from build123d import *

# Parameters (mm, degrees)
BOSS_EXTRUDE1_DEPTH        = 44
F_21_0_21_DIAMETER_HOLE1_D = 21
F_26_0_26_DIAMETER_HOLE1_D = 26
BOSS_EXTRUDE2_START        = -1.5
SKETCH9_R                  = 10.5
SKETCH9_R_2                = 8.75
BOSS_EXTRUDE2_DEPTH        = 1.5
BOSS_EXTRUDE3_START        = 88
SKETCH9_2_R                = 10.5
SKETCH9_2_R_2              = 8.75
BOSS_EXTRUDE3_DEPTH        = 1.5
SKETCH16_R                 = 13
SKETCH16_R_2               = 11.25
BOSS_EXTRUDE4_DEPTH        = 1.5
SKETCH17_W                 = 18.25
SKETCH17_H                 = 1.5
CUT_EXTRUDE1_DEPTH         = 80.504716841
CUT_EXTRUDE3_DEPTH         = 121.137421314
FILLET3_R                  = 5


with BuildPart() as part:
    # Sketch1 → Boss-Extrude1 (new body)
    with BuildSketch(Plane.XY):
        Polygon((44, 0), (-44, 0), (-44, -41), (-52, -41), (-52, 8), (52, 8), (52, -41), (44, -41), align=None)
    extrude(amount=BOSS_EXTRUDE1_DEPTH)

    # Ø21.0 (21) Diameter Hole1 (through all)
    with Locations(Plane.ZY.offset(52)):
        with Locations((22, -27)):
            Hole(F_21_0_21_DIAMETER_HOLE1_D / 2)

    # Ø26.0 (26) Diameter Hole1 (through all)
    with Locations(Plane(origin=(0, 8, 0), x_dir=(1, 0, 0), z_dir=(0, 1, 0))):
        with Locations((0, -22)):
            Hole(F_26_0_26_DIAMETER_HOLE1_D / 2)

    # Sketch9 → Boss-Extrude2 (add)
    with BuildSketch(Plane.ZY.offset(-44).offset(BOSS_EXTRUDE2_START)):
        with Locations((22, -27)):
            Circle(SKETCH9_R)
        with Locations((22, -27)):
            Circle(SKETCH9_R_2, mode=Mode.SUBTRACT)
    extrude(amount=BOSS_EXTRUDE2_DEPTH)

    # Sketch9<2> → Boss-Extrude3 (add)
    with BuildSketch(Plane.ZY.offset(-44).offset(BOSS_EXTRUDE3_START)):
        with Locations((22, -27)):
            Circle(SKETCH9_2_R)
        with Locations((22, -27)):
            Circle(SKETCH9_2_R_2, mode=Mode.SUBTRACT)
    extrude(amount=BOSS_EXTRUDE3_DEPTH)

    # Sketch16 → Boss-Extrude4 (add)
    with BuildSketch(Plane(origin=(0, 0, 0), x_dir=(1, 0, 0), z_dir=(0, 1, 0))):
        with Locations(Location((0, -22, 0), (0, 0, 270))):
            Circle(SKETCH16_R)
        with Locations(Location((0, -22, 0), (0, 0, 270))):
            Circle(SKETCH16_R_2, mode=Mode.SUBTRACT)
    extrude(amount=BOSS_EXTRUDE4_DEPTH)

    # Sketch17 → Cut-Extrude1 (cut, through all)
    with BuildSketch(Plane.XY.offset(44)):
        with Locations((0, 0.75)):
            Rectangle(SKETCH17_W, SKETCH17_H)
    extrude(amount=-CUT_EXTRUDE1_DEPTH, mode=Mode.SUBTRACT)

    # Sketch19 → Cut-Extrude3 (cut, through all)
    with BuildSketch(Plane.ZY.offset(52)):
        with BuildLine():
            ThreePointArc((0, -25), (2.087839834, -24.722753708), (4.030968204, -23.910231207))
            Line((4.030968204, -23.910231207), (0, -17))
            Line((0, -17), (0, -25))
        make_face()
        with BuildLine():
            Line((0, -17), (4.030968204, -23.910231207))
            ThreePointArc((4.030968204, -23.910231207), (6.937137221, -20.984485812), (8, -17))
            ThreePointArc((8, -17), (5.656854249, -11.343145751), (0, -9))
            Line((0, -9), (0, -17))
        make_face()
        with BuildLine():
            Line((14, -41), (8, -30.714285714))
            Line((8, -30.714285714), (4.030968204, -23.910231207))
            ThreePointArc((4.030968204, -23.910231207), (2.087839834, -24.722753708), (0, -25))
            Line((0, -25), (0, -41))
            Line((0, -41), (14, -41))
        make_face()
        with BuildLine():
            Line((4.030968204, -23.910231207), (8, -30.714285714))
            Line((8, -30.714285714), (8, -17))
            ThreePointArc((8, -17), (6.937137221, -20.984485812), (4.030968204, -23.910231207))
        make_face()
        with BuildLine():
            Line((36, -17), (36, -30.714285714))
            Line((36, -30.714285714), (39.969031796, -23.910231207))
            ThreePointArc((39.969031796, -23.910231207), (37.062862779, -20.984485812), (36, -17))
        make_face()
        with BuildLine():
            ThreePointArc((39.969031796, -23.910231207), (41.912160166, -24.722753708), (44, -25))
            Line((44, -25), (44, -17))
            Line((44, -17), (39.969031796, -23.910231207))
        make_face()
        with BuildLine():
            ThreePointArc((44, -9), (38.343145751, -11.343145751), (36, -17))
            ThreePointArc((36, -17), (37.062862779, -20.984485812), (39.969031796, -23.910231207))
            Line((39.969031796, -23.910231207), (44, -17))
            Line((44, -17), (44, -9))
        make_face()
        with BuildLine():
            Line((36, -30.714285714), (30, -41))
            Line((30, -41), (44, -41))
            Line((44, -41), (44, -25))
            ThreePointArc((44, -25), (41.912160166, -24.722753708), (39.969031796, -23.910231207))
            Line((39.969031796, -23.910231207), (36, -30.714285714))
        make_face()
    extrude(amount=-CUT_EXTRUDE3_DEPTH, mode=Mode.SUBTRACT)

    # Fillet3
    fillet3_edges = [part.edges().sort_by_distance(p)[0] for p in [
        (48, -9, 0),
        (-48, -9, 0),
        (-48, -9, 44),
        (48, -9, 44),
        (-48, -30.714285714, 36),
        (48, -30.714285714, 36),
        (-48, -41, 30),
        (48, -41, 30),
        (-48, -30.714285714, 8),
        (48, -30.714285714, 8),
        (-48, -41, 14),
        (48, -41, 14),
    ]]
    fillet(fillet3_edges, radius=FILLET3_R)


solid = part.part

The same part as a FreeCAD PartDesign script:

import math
import FreeCAD as App
import Part
import Sketcher

V = App.Vector
Q = App.Units.Quantity


def edges_at(feature, points):
    """Names of the edges that pass closest to the given points."""
    edges = feature.Shape.Edges
    near = lambda p: min(range(len(edges)), key=lambda i: edges[i].distToShape(Part.Vertex(*p))[0])
    return sorted({f"Edge{near(p) + 1}" for p in points})

doc = App.newDocument("Part")
body = doc.addObject("PartDesign::Body", "Body")

# Sketch on XY plane
sketch1 = body.newObject("Sketcher::SketchObject", "Sketch")
sketch1.AttachmentSupport = (doc.getObject("XY_Plane"), [""])
sketch1.MapMode = "FlatFace"
sketch1.addGeometry([
    Part.LineSegment(V(-44, 0, 0), V(44, 0, 0)),  # 0
    Part.LineSegment(V(44, 0, 0), V(44, -41, 0)),  # 1
    Part.LineSegment(V(44, -41, 0), V(52, -41, 0)),  # 2
    Part.LineSegment(V(52, -41, 0), V(52, 8, 0)),  # 3
    Part.LineSegment(V(52, 8, 0), V(-52, 8, 0)),  # 4
    Part.LineSegment(V(-52, 8, 0), V(-52, -41, 0)),  # 5
    Part.LineSegment(V(-52, -41, 0), V(-44, -41, 0)),  # 6
    Part.LineSegment(V(-44, -41, 0), V(-44, 0, 0)),  # 7
], False)
sketch1.addConstraint([
    Sketcher.Constraint("Coincident", 0, 2, 1, 1),
    Sketcher.Constraint("Coincident", 1, 2, 2, 1),
    Sketcher.Constraint("Coincident", 2, 2, 3, 1),
    Sketcher.Constraint("Coincident", 3, 2, 4, 1),
    Sketcher.Constraint("Coincident", 4, 2, 5, 1),
    Sketcher.Constraint("Coincident", 5, 2, 6, 1),
    Sketcher.Constraint("Coincident", 6, 2, 7, 1),
    Sketcher.Constraint("Coincident", 7, 2, 0, 1),
    Sketcher.Constraint("Horizontal", 0),
    Sketcher.Constraint("Vertical", 1),
    Sketcher.Constraint("Horizontal", 2),
    Sketcher.Constraint("Vertical", 3),
    Sketcher.Constraint("Horizontal", 4),
    Sketcher.Constraint("Vertical", 5),
    Sketcher.Constraint("Horizontal", 6),
    Sketcher.Constraint("Vertical", 7),
    Sketcher.Constraint("Symmetric", 0, 2, 7, 2, -1, 1),
    Sketcher.Constraint("Symmetric", 2, 2, 5, 2, -2),
    Sketcher.Constraint("DistanceX", 0, 1, 0, 2, Q("88 mm")),
    Sketcher.Constraint("DistanceX", 2, 1, 2, 2, Q("8 mm")),
    Sketcher.Constraint("DistanceY", 1, 2, 1, 1, Q("41 mm")),
    Sketcher.Constraint("DistanceY", 3, 1, 3, 2, Q("49 mm")),
])
pad1 = body.newObject("PartDesign::Pad", "Pad")
pad1.Profile = sketch1
pad1.Length = 44

# Sketch on YZ plane
sketch2 = body.newObject("Sketcher::SketchObject", "Sketch001")
sketch2.AttachmentSupport = (doc.getObject("YZ_Plane"), [""])
sketch2.MapMode = "FlatFace"
sketch2.AttachmentOffset = App.Placement(V(0, 0, -52), App.Rotation())
sketch2.addGeometry(Part.Circle(V(-27, 22, 0), V(0, 0, 1), 10), False)
sketch2.addConstraint([
    Sketcher.Constraint("Diameter", 0, Q("21 mm")),
    Sketcher.Constraint("DistanceX", 0, 3, -1, 1, Q("27 mm")),
    Sketcher.Constraint("DistanceY", -1, 1, 0, 3, Q("22 mm")),
])
doc.recompute()
hole = body.newObject("PartDesign::Hole", "Hole")
hole.Profile = sketch2
hole.ThreadType = "None"
hole.Diameter = 21
hole.DepthType = "ThroughAll"
hole.Reversed = True

# Sketch on XZ plane
sketch3 = body.newObject("Sketcher::SketchObject", "Sketch002")
sketch3.AttachmentSupport = (doc.getObject("XZ_Plane"), [""])
sketch3.MapMode = "FlatFace"
sketch3.AttachmentOffset = App.Placement(V(0, 0, -8), App.Rotation())
sketch3.addGeometry(Part.Circle(V(0, 22, 0), V(0, 0, 1), 13), False)
sketch3.addConstraint([
    Sketcher.Constraint("PointOnObject", 0, 3, -2),
    Sketcher.Constraint("Diameter", 0, Q("26 mm")),
    Sketcher.Constraint("DistanceY", -1, 1, 0, 3, Q("22 mm")),
])
doc.recompute()
hole2 = body.newObject("PartDesign::Hole", "Hole001")
hole2.Profile = sketch3
hole2.ThreadType = "None"
hole2.Diameter = 26
hole2.DepthType = "ThroughAll"
hole2.Reversed = True

# Sketch on YZ plane
sketch4 = body.newObject("Sketcher::SketchObject", "Sketch003")
sketch4.AttachmentSupport = (doc.getObject("YZ_Plane"), [""])
sketch4.MapMode = "FlatFace"
sketch4.AttachmentOffset = App.Placement(V(0, 0, 45.5), App.Rotation())
sketch4.addGeometry([
    Part.Circle(V(-27, 22, 0), V(0, 0, 1), 10),
    Part.Circle(V(-27, 22, 0), V(0, 0, 1), 9),
], False)
sketch4.addConstraint([
    Sketcher.Constraint("Coincident", 1, 3, 0, 3),
    Sketcher.Constraint("Diameter", 0, Q("21 mm")),
    Sketcher.Constraint("Diameter", 1, Q("17.5 mm")),
    Sketcher.Constraint("DistanceX", 0, 3, -1, 1, Q("27 mm")),
    Sketcher.Constraint("DistanceY", -1, 1, 0, 3, Q("22 mm")),
])
pad2 = body.newObject("PartDesign::Pad", "Pad001")
pad2.Profile = sketch4
pad2.Length = 1.5
pad2.Reversed = True

# Sketch on YZ plane
sketch5 = body.newObject("Sketcher::SketchObject", "Sketch004")
sketch5.AttachmentSupport = (doc.getObject("YZ_Plane"), [""])
sketch5.MapMode = "FlatFace"
sketch5.AttachmentOffset = App.Placement(V(0, 0, -44), App.Rotation())
sketch5.addGeometry([
    Part.Circle(V(-27, 22, 0), V(0, 0, 1), 10),
    Part.Circle(V(-27, 22, 0), V(0, 0, 1), 9),
], False)
sketch5.addConstraint([
    Sketcher.Constraint("Coincident", 1, 3, 0, 3),
    Sketcher.Constraint("Diameter", 0, Q("21 mm")),
    Sketcher.Constraint("Diameter", 1, Q("17.5 mm")),
    Sketcher.Constraint("DistanceX", 0, 3, -1, 1, Q("27 mm")),
    Sketcher.Constraint("DistanceY", -1, 1, 0, 3, Q("22 mm")),
])
pad3 = body.newObject("PartDesign::Pad", "Pad002")
pad3.Profile = sketch5
pad3.Length = 1.5
pad3.Reversed = True

# Sketch on XZ plane
sketch6 = body.newObject("Sketcher::SketchObject", "Sketch005")
sketch6.AttachmentSupport = (doc.getObject("XZ_Plane"), [""])
sketch6.MapMode = "FlatFace"
sketch6.addGeometry([
    Part.Circle(V(0, 22, 0), V(0, 0, 1), 13),
    Part.Circle(V(0, 22, 0), V(0, 0, 1), 11),
], False)
sketch6.addConstraint([
    Sketcher.Constraint("Coincident", 1, 3, 0, 3),
    Sketcher.Constraint("PointOnObject", 0, 3, -2),
    Sketcher.Constraint("Diameter", 0, Q("26 mm")),
    Sketcher.Constraint("Diameter", 1, Q("22.5 mm")),
    Sketcher.Constraint("DistanceY", -1, 1, 0, 3, Q("22 mm")),
])
pad4 = body.newObject("PartDesign::Pad", "Pad003")
pad4.Profile = sketch6
pad4.Length = 1.5
pad4.Reversed = True

# Sketch on XY plane
sketch7 = body.newObject("Sketcher::SketchObject", "Sketch006")
sketch7.AttachmentSupport = (doc.getObject("XY_Plane"), [""])
sketch7.MapMode = "FlatFace"
sketch7.AttachmentOffset = App.Placement(V(0, 0, 44), App.Rotation())
sketch7.addGeometry([
    Part.LineSegment(V(-9.1, 1.5, 0), V(-9.1, 0, 0)),
    Part.LineSegment(V(-9.1, 0, 0), V(9.1, 0, 0)),
    Part.LineSegment(V(9.1, 0, 0), V(9.1, 1.5, 0)),
    Part.LineSegment(V(9.1, 1.5, 0), V(-9.1, 1.5, 0)),
], False)
sketch7.addConstraint([
    Sketcher.Constraint("Coincident", 0, 2, 1, 1),
    Sketcher.Constraint("Coincident", 1, 2, 2, 1),
    Sketcher.Constraint("Coincident", 2, 2, 3, 1),
    Sketcher.Constraint("Coincident", 3, 2, 0, 1),
    Sketcher.Constraint("Vertical", 0),
    Sketcher.Constraint("Horizontal", 1),
    Sketcher.Constraint("Vertical", 2),
    Sketcher.Constraint("Horizontal", 3),
    Sketcher.Constraint("Symmetric", 0, 2, 1, 2, -1, 1),
    Sketcher.Constraint("DistanceY", 0, 2, 0, 1, Q("1.5 mm")),
    Sketcher.Constraint("DistanceX", 1, 1, 1, 2, Q("18.25 mm")),
])
pocket1 = body.newObject("PartDesign::Pocket", "Pocket")
pocket1.Profile = sketch7
pocket1.Type = "ThroughAll"

# Sketch on YZ plane
sketch8 = body.newObject("Sketcher::SketchObject", "Sketch007")
sketch8.AttachmentSupport = (doc.getObject("YZ_Plane"), [""])
sketch8.MapMode = "FlatFace"
sketch8.AttachmentOffset = App.Placement(V(0, 0, -52), App.Rotation())
sketch8.addGeometry([
    Part.ArcOfCircle(Part.Circle(V(-17, 0, 0), V(0, 0, 1), 8), math.radians(0), math.radians(90)),  # 0
    Part.LineSegment(V(-9, 0, 0), V(-41, 0, 0)),  # 1
    Part.LineSegment(V(-41, 0, 0), V(-41, 14, 0)),  # 2
    Part.LineSegment(V(-41, 14, 0), V(-31, 8, 0)),  # 3
    Part.LineSegment(V(-31, 8, 0), V(-17, 8, 0)),  # 4
    Part.LineSegment(V(-17, 36, 0), V(-31, 36, 0)),  # 5
    Part.LineSegment(V(-31, 36, 0), V(-41, 30, 0)),  # 6
    Part.LineSegment(V(-41, 30, 0), V(-41, 44, 0)),  # 7
    Part.LineSegment(V(-41, 44, 0), V(-9, 44, 0)),  # 8
    Part.ArcOfCircle(Part.Circle(V(-17, 44, 0), V(0, 0, 1), 8), math.radians(-90), math.radians(0)),  # 9
], False)
sketch8.addConstraint([
    Sketcher.Constraint("Coincident", 0, 1, 1, 1),
    Sketcher.Constraint("Coincident", 1, 2, 2, 1),
    Sketcher.Constraint("Coincident", 2, 2, 3, 1),
    Sketcher.Constraint("Coincident", 3, 2, 4, 1),
    Sketcher.Constraint("Tangent", 4, 2, 0, 2),
    Sketcher.Constraint("Coincident", 5, 2, 6, 1),
    Sketcher.Constraint("Coincident", 6, 2, 7, 1),
    Sketcher.Constraint("Coincident", 7, 2, 8, 1),
    Sketcher.Constraint("Coincident", 8, 2, 9, 2),
    Sketcher.Constraint("Tangent", 9, 1, 5, 1),
    Sketcher.Constraint("Horizontal", 1),
    Sketcher.Constraint("Vertical", 2),
    Sketcher.Constraint("Horizontal", 4),
    Sketcher.Constraint("Horizontal", 5),
    Sketcher.Constraint("Vertical", 7),
    Sketcher.Constraint("Horizontal", 8),
    Sketcher.Constraint("Equal", 0, 9),
    Sketcher.Constraint("PointOnObject", 0, 3, -1),
    Sketcher.Constraint("PointOnObject", 0, 1, -1),
    Sketcher.Constraint("Horizontal", 9, 3, 7, 2),
    Sketcher.Constraint("Vertical", 0, 3, 9, 3),
    Sketcher.Constraint("Vertical", 3, 2, 5, 2),
    Sketcher.Constraint("Vertical", 2, 2, 6, 2),
    Sketcher.Constraint("Equal", 2, 7),
    Sketcher.Constraint("Radius", 0, Q("8 mm")),
    Sketcher.Constraint("DistanceX", 1, 2, 1, 1, Q("32 mm")),
    Sketcher.Constraint("DistanceY", 2, 1, 2, 2, Q("14 mm")),
    Sketcher.Constraint("DistanceX", 0, 3, -1, 1, Q("17 mm")),
    Sketcher.Constraint("DistanceY", -1, 1, 9, 3, Q("44 mm")),
    Sketcher.Constraint("Distance", 3, Q("11.907809 mm")),
])
pocket2 = body.newObject("PartDesign::Pocket", "Pocket001")
pocket2.Profile = sketch8
pocket2.Type = "ThroughAll"
pocket2.Reversed = True
doc.recompute()

fillet = body.newObject("PartDesign::Fillet", "Fillet")
fillet.Base = (pocket2, edges_at(pocket2, [
    (48, -9, 0),
    (-48, -9, 0),
    (-48, -9, 44),
    (48, -9, 44),
    (-48, -30.714, 36),
    (48, -30.714, 36),
    (-48, -41, 30),
    (48, -41, 30),
    (-48, -30.714, 8),
    (48, -30.714, 8),
    (-48, -41, 14),
    (48, -41, 14),
]))
fillet.Radius = 5

doc.recompute()
